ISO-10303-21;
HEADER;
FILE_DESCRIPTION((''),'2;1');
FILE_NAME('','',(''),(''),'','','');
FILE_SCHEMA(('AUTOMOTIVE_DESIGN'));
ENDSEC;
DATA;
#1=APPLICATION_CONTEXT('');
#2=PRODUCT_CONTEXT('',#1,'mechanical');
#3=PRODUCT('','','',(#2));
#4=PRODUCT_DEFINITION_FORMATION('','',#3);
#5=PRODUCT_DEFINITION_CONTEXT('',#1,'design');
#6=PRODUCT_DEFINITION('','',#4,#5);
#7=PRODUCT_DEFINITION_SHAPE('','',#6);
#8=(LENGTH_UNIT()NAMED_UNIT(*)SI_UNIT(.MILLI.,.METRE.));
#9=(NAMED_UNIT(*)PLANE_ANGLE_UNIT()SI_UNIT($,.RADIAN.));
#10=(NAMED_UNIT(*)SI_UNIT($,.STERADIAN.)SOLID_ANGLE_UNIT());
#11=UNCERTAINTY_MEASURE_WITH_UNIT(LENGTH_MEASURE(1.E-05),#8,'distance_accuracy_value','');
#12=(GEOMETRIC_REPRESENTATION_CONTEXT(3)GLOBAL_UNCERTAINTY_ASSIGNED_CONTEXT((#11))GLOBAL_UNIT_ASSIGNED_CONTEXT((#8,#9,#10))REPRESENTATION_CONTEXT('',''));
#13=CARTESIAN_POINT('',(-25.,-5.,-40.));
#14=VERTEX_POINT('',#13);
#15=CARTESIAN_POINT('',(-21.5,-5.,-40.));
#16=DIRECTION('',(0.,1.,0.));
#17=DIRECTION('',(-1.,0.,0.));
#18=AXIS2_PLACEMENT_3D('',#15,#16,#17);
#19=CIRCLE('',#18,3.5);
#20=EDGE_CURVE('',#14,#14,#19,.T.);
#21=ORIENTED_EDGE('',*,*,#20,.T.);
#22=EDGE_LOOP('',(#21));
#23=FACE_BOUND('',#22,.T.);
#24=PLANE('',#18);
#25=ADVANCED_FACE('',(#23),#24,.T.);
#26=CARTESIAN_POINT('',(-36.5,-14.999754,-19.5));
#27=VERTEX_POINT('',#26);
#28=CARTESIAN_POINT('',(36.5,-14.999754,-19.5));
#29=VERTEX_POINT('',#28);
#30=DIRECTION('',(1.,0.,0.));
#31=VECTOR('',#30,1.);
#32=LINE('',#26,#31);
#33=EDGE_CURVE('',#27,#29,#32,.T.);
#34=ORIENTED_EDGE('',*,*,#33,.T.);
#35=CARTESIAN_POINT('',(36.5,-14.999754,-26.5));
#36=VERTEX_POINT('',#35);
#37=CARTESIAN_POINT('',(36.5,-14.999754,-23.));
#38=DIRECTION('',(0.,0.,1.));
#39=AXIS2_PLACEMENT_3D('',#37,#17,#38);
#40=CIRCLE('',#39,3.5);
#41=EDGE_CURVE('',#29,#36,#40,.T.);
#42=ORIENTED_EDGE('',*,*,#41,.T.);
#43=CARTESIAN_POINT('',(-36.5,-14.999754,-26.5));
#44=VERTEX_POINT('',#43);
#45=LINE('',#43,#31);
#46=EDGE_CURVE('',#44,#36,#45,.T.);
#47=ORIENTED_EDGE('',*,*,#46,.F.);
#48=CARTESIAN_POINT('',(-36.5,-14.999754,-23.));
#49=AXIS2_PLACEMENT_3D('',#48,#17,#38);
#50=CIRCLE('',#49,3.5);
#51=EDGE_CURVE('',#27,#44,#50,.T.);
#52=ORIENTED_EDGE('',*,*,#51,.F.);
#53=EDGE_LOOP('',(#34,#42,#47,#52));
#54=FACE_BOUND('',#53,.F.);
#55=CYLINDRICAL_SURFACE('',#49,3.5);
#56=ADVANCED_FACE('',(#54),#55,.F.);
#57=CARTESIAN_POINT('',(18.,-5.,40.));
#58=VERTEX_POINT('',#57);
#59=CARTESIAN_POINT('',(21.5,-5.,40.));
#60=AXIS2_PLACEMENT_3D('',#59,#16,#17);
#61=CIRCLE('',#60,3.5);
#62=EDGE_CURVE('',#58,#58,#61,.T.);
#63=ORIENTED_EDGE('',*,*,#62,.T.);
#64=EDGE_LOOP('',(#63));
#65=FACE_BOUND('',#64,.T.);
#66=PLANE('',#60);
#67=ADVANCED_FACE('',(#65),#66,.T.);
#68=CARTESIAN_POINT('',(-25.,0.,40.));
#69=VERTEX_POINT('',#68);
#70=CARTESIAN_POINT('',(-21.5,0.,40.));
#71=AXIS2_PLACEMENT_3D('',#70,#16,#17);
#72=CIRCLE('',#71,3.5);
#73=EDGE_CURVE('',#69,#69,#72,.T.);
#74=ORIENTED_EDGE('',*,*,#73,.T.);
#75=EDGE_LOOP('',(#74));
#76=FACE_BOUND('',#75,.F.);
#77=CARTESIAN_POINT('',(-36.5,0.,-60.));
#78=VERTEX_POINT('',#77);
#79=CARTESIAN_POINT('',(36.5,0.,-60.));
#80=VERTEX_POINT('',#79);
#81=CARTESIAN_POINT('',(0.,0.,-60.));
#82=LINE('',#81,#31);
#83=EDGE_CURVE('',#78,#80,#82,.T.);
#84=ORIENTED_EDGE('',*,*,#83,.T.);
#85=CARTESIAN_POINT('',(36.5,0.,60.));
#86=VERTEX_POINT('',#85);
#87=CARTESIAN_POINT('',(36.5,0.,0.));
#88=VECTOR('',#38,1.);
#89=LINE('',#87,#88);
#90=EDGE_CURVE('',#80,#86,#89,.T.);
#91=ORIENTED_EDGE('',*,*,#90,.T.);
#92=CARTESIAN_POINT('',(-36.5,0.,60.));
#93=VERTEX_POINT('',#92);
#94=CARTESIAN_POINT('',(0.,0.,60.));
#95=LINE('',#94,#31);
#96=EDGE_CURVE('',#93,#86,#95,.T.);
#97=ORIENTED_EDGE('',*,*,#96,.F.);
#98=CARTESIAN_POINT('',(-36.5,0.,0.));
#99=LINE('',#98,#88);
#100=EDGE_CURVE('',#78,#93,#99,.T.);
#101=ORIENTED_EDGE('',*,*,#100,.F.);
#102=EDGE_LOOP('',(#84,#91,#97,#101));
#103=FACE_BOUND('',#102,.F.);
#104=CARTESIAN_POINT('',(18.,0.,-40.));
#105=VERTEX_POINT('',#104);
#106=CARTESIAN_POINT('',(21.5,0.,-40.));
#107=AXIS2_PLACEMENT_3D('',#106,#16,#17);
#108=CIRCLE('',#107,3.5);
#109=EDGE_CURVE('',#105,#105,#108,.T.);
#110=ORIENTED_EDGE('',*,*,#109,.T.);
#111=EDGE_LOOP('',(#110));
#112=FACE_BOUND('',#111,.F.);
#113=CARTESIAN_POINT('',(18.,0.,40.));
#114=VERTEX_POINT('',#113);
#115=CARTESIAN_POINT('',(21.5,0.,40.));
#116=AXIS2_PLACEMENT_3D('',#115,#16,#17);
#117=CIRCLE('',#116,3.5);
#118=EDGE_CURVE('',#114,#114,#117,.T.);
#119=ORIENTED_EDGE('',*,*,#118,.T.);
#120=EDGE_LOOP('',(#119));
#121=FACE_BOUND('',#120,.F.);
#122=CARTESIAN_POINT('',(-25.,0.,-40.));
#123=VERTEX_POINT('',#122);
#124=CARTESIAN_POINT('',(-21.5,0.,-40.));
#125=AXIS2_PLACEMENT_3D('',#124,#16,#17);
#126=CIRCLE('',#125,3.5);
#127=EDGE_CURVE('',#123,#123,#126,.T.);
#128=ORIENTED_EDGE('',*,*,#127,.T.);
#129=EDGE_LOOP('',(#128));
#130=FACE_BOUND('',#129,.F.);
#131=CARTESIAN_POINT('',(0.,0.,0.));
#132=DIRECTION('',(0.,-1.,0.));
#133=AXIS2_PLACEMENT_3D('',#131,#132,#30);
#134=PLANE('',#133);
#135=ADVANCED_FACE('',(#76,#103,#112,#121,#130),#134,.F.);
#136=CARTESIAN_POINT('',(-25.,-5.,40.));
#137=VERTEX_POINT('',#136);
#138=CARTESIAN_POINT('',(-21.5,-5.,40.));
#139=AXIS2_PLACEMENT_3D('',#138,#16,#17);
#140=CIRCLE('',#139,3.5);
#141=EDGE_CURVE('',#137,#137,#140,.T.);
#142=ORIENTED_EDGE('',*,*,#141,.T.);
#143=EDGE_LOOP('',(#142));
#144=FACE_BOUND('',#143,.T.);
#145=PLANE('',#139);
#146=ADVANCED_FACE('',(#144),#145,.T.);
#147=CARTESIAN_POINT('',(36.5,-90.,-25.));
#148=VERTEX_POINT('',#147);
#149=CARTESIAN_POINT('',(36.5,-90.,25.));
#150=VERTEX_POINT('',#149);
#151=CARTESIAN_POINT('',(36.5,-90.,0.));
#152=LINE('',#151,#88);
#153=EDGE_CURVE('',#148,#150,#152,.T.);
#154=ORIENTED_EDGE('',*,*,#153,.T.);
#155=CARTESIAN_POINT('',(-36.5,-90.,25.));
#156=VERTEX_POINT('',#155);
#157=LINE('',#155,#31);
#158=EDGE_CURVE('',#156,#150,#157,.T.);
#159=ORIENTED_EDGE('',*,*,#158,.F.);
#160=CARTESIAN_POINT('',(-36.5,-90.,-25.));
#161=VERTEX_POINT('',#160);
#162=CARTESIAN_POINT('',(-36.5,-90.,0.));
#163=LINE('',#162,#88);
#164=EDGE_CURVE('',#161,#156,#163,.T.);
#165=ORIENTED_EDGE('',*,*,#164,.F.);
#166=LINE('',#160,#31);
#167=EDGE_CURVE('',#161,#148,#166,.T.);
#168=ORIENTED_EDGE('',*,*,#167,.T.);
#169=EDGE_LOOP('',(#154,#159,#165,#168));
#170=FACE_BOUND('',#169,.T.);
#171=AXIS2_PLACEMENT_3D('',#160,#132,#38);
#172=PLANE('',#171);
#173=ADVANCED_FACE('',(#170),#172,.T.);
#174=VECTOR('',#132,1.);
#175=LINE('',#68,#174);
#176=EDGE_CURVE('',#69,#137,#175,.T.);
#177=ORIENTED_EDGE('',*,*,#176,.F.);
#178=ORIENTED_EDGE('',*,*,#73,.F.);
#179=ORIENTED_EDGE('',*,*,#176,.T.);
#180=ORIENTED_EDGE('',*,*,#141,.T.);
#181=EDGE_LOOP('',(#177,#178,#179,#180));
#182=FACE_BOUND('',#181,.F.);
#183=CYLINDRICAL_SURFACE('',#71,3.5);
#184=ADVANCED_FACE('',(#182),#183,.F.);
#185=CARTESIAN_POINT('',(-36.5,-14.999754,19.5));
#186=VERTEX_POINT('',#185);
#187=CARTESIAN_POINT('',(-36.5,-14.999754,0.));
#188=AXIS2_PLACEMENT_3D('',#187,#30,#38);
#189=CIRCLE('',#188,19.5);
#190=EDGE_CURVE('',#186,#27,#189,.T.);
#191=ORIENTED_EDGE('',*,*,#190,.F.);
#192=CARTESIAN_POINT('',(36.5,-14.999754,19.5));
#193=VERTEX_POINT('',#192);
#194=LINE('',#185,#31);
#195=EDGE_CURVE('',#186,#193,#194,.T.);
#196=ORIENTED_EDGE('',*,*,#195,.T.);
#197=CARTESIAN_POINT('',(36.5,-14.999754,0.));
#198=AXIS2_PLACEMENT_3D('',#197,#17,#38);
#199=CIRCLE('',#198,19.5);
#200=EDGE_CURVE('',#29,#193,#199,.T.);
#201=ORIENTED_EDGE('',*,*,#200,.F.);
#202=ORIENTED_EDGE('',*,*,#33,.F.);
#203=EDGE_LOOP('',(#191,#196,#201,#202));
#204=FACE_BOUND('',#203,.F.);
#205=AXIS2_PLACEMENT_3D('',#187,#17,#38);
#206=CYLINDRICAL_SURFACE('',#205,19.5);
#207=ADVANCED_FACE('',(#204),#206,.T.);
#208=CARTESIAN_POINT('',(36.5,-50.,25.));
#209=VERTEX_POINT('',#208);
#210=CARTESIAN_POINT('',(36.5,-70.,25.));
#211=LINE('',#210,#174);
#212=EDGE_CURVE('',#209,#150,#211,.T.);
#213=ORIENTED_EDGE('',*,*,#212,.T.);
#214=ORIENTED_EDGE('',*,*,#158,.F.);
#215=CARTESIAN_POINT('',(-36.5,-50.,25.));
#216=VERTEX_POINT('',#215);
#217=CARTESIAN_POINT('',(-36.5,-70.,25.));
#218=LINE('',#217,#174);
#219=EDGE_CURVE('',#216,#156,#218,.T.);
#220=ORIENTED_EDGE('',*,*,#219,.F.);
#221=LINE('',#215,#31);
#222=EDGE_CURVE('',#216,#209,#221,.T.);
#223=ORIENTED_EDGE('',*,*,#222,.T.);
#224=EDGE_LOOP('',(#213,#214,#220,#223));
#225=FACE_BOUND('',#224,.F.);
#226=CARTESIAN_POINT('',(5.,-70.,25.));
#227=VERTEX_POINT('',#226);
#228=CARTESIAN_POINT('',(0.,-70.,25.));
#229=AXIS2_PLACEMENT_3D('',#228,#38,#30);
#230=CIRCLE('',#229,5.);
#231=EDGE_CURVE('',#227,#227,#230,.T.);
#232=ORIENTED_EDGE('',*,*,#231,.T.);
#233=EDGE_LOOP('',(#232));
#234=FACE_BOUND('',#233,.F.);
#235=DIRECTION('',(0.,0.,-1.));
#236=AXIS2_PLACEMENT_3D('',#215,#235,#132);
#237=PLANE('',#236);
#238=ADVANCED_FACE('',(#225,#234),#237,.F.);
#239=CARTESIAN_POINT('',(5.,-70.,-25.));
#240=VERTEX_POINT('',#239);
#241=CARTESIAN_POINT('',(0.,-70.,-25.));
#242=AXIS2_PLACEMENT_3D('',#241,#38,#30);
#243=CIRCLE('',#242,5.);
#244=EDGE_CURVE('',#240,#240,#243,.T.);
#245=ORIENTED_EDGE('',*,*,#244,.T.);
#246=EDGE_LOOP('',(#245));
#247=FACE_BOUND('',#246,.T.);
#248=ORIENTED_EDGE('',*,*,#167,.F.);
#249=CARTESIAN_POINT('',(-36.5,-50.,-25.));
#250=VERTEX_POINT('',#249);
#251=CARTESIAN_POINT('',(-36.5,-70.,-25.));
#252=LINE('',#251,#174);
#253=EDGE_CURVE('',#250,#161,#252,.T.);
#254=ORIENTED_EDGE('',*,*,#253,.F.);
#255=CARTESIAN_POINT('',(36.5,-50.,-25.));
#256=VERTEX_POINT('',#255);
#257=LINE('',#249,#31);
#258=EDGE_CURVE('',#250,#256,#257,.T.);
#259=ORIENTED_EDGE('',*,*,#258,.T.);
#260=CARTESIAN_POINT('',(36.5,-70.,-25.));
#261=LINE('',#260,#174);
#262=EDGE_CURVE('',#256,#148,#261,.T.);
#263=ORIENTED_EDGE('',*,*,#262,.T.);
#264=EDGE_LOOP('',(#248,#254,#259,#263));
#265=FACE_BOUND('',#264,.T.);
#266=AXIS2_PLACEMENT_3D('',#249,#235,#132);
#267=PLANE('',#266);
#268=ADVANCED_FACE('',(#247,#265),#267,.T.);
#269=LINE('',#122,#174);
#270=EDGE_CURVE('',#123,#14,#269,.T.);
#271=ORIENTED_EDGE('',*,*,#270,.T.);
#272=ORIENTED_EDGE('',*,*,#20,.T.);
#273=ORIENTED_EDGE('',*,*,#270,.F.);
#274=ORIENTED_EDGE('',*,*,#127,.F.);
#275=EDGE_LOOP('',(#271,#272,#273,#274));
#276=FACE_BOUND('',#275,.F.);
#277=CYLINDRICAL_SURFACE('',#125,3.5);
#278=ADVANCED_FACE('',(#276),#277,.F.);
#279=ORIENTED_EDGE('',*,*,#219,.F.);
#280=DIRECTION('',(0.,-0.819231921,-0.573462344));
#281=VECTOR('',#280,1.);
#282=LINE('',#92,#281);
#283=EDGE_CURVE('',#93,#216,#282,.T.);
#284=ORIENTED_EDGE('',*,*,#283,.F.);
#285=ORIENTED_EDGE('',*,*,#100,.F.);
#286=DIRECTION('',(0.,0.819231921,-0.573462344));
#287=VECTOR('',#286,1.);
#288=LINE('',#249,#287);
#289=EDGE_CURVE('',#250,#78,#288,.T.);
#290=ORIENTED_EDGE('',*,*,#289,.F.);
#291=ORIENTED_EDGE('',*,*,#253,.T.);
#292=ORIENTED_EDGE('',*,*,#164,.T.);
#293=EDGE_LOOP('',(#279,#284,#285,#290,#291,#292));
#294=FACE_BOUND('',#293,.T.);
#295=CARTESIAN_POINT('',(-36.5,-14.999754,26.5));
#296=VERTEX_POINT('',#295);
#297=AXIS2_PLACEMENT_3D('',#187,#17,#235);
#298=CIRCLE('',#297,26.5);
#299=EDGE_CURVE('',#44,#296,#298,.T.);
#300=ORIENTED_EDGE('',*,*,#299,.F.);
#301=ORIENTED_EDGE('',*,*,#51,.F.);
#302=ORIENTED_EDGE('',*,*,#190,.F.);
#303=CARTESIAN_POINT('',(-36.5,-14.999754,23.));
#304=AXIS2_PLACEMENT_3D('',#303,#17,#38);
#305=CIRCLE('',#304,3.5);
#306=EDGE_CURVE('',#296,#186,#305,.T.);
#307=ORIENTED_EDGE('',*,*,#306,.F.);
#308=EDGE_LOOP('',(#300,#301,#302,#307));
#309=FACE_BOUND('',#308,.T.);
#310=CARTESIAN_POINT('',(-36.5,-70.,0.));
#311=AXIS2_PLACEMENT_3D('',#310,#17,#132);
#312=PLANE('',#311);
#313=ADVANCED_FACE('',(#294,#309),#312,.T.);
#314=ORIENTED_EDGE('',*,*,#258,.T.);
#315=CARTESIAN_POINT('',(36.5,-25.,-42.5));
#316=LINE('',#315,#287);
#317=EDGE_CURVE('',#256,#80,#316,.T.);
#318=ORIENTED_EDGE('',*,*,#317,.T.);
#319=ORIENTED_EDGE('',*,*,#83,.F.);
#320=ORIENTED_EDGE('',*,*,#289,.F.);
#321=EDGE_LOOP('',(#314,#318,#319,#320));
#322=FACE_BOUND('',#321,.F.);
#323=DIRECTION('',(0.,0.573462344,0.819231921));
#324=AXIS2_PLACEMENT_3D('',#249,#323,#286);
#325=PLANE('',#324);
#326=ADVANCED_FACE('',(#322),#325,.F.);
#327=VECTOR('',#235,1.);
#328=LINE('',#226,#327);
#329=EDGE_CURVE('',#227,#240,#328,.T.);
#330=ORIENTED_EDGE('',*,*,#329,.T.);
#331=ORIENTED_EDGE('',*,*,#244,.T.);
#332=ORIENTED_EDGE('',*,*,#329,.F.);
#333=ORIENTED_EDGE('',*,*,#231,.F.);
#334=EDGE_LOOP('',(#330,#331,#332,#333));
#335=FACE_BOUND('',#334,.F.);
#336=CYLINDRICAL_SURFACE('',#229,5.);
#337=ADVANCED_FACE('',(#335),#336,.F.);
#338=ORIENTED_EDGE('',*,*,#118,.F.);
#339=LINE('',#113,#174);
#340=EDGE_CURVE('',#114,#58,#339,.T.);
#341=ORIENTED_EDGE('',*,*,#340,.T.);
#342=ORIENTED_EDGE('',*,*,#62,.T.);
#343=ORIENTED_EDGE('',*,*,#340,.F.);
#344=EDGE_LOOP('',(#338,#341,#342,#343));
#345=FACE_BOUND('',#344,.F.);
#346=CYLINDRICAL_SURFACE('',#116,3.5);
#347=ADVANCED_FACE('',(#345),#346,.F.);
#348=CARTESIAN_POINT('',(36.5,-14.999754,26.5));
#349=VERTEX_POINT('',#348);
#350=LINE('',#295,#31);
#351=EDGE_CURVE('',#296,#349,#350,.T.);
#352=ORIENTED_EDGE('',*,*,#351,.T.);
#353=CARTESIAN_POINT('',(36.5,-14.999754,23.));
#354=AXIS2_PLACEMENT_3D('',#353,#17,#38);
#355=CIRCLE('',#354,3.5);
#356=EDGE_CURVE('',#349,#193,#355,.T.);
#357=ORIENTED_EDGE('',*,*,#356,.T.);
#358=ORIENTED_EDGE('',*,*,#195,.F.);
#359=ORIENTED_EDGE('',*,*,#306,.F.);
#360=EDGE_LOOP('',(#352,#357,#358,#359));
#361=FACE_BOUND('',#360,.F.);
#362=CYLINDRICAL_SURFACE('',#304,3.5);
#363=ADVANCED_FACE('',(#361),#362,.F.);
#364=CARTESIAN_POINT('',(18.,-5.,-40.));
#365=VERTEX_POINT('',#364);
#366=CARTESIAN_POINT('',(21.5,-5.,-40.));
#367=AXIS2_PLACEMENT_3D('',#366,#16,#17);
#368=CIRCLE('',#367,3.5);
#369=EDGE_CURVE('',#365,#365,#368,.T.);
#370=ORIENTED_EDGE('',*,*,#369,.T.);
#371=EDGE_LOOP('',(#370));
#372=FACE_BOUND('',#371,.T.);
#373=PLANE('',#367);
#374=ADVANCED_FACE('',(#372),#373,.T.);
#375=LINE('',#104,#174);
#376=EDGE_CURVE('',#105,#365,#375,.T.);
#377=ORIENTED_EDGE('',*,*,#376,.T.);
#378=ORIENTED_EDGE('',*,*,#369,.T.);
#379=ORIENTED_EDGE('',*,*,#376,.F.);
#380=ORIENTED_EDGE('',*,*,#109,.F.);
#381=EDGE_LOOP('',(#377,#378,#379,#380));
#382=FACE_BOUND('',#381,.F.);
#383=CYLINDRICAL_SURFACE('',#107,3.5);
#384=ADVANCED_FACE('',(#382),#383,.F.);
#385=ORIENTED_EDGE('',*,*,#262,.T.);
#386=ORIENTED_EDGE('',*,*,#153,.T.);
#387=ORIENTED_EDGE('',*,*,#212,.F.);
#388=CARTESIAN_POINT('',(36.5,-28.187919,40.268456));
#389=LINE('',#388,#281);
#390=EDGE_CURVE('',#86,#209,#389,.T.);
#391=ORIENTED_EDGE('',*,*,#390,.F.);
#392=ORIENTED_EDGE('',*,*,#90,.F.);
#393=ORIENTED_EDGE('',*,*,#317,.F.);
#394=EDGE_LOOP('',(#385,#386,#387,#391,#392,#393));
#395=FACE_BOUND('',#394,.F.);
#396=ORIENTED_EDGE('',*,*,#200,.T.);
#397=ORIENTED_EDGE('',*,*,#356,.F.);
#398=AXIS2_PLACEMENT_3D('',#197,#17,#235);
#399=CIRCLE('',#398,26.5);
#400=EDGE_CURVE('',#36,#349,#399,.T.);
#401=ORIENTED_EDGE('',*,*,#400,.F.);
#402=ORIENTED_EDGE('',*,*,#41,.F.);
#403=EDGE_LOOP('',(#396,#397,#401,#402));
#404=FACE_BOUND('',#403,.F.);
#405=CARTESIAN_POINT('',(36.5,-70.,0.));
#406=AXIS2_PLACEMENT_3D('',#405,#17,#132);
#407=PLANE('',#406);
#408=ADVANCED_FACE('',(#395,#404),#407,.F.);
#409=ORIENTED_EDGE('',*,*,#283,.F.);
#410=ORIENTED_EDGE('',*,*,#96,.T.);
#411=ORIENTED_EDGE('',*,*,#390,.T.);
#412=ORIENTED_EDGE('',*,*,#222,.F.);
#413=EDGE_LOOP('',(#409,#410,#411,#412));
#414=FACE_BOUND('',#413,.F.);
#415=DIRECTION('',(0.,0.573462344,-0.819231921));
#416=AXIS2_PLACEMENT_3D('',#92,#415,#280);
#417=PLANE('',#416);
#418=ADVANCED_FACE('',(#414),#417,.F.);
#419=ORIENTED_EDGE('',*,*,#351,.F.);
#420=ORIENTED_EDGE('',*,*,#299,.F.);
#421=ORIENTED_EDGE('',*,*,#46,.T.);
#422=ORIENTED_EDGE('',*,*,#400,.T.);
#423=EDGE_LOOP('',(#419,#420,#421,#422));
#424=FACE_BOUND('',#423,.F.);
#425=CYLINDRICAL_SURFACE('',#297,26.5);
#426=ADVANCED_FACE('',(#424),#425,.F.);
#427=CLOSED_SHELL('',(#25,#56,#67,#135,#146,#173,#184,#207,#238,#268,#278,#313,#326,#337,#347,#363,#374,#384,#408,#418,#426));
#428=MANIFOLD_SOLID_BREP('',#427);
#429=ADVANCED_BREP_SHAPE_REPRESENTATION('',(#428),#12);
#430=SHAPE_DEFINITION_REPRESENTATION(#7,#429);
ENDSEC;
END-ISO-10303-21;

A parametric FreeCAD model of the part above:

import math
import FreeCAD as App
import Part
import Sketcher

V = App.Vector
Q = App.Units.Quantity


def add_polygon(sketch, points):
    """Adds a closed chain of lines whose ends are joined by coincident constraints."""
    first, n = sketch.GeometryCount, len(points)
    for a, b in zip(points, points[1:] + points[:1]):
        sketch.addGeometry(Part.LineSegment(App.Vector(*a, 0), App.Vector(*b, 0)), False)
    for i in range(n):
        sketch.addConstraint(Sketcher.Constraint("Coincident", first + i, 2, first + (i + 1) % n, 1))

doc = App.newDocument("Part")
body = doc.addObject("PartDesign::Body", "Body")

# Sketch on XZ plane
sketch1 = body.newObject("Sketcher::SketchObject", "Sketch")
sketch1.AttachmentSupport = (doc.getObject("XZ_Plane"), [""])
sketch1.MapMode = "FlatFace"
add_polygon(sketch1, [(-36.5, 60), (-36.5, -60), (36.5, -60), (36.5, 60)])  # lines 0-3
sketch1.addConstraint([
    Sketcher.Constraint("Vertical", 0),
    Sketcher.Constraint("Horizontal", 1),
    Sketcher.Constraint("Vertical", 2),
    Sketcher.Constraint("Horizontal", 3),
    Sketcher.Constraint("Symmetric", 0, 2, 2, 2, -1, 1),
    Sketcher.Constraint("DistanceX", 1, 1, 1, 2, Q("73 mm")),
    Sketcher.Constraint("DistanceY", 0, 2, 0, 1, Q("120 mm")),
])
pad1 = body.newObject("PartDesign::Pad", "Pad")
pad1.Profile = sketch1
pad1.Length = 50

# Sketch on YZ plane
sketch2 = body.newObject("Sketcher::SketchObject", "Sketch001")
sketch2.AttachmentSupport = (doc.getObject("YZ_Plane"), [""])
sketch2.MapMode = "FlatFace"
sketch2.AttachmentOffset = App.Placement(V(0, 0, -36.5), App.Rotation())
sketch2.addGeometry([
    Part.ArcOfCircle(Part.Circle(V(-14.999754, 0, 0), V(0, 0, 1), 19.5), math.radians(90), math.radians(270)),
    Part.ArcOfCircle(Part.Circle(V(-14.999754, -23, 0), V(0, 0, 1), 3.5), math.radians(-90), math.radians(90)),
    Part.ArcOfCircle(Part.Circle(V(-14.999754, 0, 0), V(0, 0, 1), 26.5), math.radians(90), math.radians(270)),
    Part.ArcOfCircle(Part.Circle(V(-14.999754, 23, 0), V(0, 0, 1), 3.5), math.radians(-90), math.radians(90)),
], False)
sketch2.addConstraint([
    Sketcher.Constraint("Tangent", 0, 2, 1, 2),
    Sketcher.Constraint("Tangent", 1, 1, 2, 2),
    Sketcher.Constraint("Tangent", 2, 1, 3, 2),
    Sketcher.Constraint("Tangent", 3, 1, 0, 1),
    Sketcher.Constraint("Coincident", 2, 3, 0, 3),
    Sketcher.Constraint("Symmetric", 1, 3, 3, 3, -1),
    Sketcher.Constraint("Vertical", 0, 3, 1, 3),
    Sketcher.Constraint("Radius", 0, Q("19.5 mm")),
    Sketcher.Constraint("Radius", 1, Q("3.5 mm")),
    Sketcher.Constraint("DistanceX", 0, 3, -1, 1, Q("14.999754 mm")),
])
pocket1 = body.newObject("PartDesign::Pocket", "Pocket")
pocket1.Profile = sketch2
pocket1.Length = 80
pocket1.Reversed = True

# Sketch on YZ plane
sketch3 = body.newObject("Sketcher::SketchObject", "Sketch002")
sketch3.AttachmentSupport = (doc.getObject("YZ_Plane"), [""])
sketch3.MapMode = "FlatFace"
sketch3.AttachmentOffset = App.Placement(V(0, 0, -36.5), App.Rotation())
add_polygon(sketch3, [(-50, 60), (0, 60), (-50, 25)])  # lines 0-2
add_polygon(sketch3, [(-50, -25), (0, -60), (-50, -60)])  # lines 3-5
sketch3.addConstraint([
    Sketcher.Constraint("Horizontal", 0),
    Sketcher.Constraint("Vertical", 2),
    Sketcher.Constraint("Horizontal", 4),
    Sketcher.Constraint("Vertical", 5),
    Sketcher.Constraint("Symmetric", 0, 2, 3, 2, -1, 1),
    Sketcher.Constraint("Symmetric", 1, 2, 5, 2, -1),
    Sketcher.Constraint("PointOnObject", 0, 2, -2),
    Sketcher.Constraint("DistanceX", 0, 1, 0, 2, Q("50 mm")),
    Sketcher.Constraint("DistanceY", 2, 1, 2, 2, Q("35 mm")),
    Sketcher.Constraint("DistanceY", -1, 1, 0, 2, Q("60 mm")),
])
pocket2 = body.newObject("PartDesign::Pocket", "Pocket001")
pocket2.Profile = sketch3
pocket2.Length = 80
pocket2.Reversed = True

# Sketch on XZ plane
sketch4 = body.newObject("Sketcher::SketchObject", "Sketch003")
sketch4.AttachmentSupport = (doc.getObject("XZ_Plane"), [""])
sketch4.MapMode = "FlatFace"
sketch4.addGeometry([
    Part.Circle(V(21.5, 40, 0), V(0, 0, 1), 3.5),
    Part.Circle(V(-21.5, 40, 0), V(0, 0, 1), 3.5),
    Part.Circle(V(21.5, -40, 0), V(0, 0, 1), 3.5),
    Part.Circle(V(-21.5, -40, 0), V(0, 0, 1), 3.5),
], False)
sketch4.addConstraint([
    Sketcher.Constraint("Equal", 0, 1),
    Sketcher.Constraint("Equal", 1, 2),
    Sketcher.Constraint("Equal", 2, 3),
    Sketcher.Constraint("Symmetric", 1, 3, 2, 3, -1, 1),
    Sketcher.Constraint("Symmetric", 0, 3, 3, 3, -1, 1),
    Sketcher.Constraint("Symmetric", 0, 3, 1, 3, -2),
    Sketcher.Constraint("Diameter", 0, Q("7 mm")),
    Sketcher.Constraint("DistanceY", -1, 1, 0, 3, Q("40 mm")),
    Sketcher.Constraint("DistanceX", 1, 3, 0, 3, Q("43 mm")),
])
pocket3 = body.newObject("PartDesign::Pocket", "Pocket002")
pocket3.Profile = sketch4
pocket3.Length = 5
pocket3.Reversed = True

# Sketch on YZ plane
sketch5 = body.newObject("Sketcher::SketchObject", "Sketch004")
sketch5.AttachmentSupport = (doc.getObject("YZ_Plane"), [""])
sketch5.MapMode = "FlatFace"
sketch5.AttachmentOffset = App.Placement(V(0, 0, -36.5), App.Rotation())
add_polygon(sketch5, [(-50, 25), (-50, -25), (-90, -25), (-90, 25)])  # lines 0-3
sketch5.addConstraint([
    Sketcher.Constraint("Vertical", 0),
    Sketcher.Constraint("Horizontal", 1),
    Sketcher.Constraint("Vertical", 2),
    Sketcher.Constraint("Horizontal", 3),
    Sketcher.Constraint("DistanceX", 1, 2, 1, 1, Q("40 mm")),
    Sketcher.Constraint("DistanceY", 0, 2, 0, 1, Q("50 mm")),
    Sketcher.Constraint("DistanceX", 0, 2, -1, 1, Q("50 mm")),
    Sketcher.Constraint("DistanceY", 0, 2, -1, 1, Q("25 mm")),
])
pad2 = body.newObject("PartDesign::Pad", "Pad001")
pad2.Profile = sketch5
pad2.Length = 73

# Sketch on XY plane
sketch6 = body.newObject("Sketcher::SketchObject", "Sketch005")
sketch6.AttachmentSupport = (doc.getObject("XY_Plane"), [""])
sketch6.MapMode = "FlatFace"
sketch6.AttachmentOffset = App.Placement(V(0, 0, 25), App.Rotation())
sketch6.addGeometry(Part.Circle(V(0, -70, 0), V(0, 0, 1), 5), False)
sketch6.addConstraint([
    Sketcher.Constraint("PointOnObject", 0, 3, -2),
    Sketcher.Constraint("Diameter", 0, Q("10 mm")),
    Sketcher.Constraint("DistanceY", 0, 3, -1, 1, Q("70 mm")),
])
pocket4 = body.newObject("PartDesign::Pocket", "Pocket003")
pocket4.Profile = sketch6
pocket4.Length = 80

doc.recompute()
